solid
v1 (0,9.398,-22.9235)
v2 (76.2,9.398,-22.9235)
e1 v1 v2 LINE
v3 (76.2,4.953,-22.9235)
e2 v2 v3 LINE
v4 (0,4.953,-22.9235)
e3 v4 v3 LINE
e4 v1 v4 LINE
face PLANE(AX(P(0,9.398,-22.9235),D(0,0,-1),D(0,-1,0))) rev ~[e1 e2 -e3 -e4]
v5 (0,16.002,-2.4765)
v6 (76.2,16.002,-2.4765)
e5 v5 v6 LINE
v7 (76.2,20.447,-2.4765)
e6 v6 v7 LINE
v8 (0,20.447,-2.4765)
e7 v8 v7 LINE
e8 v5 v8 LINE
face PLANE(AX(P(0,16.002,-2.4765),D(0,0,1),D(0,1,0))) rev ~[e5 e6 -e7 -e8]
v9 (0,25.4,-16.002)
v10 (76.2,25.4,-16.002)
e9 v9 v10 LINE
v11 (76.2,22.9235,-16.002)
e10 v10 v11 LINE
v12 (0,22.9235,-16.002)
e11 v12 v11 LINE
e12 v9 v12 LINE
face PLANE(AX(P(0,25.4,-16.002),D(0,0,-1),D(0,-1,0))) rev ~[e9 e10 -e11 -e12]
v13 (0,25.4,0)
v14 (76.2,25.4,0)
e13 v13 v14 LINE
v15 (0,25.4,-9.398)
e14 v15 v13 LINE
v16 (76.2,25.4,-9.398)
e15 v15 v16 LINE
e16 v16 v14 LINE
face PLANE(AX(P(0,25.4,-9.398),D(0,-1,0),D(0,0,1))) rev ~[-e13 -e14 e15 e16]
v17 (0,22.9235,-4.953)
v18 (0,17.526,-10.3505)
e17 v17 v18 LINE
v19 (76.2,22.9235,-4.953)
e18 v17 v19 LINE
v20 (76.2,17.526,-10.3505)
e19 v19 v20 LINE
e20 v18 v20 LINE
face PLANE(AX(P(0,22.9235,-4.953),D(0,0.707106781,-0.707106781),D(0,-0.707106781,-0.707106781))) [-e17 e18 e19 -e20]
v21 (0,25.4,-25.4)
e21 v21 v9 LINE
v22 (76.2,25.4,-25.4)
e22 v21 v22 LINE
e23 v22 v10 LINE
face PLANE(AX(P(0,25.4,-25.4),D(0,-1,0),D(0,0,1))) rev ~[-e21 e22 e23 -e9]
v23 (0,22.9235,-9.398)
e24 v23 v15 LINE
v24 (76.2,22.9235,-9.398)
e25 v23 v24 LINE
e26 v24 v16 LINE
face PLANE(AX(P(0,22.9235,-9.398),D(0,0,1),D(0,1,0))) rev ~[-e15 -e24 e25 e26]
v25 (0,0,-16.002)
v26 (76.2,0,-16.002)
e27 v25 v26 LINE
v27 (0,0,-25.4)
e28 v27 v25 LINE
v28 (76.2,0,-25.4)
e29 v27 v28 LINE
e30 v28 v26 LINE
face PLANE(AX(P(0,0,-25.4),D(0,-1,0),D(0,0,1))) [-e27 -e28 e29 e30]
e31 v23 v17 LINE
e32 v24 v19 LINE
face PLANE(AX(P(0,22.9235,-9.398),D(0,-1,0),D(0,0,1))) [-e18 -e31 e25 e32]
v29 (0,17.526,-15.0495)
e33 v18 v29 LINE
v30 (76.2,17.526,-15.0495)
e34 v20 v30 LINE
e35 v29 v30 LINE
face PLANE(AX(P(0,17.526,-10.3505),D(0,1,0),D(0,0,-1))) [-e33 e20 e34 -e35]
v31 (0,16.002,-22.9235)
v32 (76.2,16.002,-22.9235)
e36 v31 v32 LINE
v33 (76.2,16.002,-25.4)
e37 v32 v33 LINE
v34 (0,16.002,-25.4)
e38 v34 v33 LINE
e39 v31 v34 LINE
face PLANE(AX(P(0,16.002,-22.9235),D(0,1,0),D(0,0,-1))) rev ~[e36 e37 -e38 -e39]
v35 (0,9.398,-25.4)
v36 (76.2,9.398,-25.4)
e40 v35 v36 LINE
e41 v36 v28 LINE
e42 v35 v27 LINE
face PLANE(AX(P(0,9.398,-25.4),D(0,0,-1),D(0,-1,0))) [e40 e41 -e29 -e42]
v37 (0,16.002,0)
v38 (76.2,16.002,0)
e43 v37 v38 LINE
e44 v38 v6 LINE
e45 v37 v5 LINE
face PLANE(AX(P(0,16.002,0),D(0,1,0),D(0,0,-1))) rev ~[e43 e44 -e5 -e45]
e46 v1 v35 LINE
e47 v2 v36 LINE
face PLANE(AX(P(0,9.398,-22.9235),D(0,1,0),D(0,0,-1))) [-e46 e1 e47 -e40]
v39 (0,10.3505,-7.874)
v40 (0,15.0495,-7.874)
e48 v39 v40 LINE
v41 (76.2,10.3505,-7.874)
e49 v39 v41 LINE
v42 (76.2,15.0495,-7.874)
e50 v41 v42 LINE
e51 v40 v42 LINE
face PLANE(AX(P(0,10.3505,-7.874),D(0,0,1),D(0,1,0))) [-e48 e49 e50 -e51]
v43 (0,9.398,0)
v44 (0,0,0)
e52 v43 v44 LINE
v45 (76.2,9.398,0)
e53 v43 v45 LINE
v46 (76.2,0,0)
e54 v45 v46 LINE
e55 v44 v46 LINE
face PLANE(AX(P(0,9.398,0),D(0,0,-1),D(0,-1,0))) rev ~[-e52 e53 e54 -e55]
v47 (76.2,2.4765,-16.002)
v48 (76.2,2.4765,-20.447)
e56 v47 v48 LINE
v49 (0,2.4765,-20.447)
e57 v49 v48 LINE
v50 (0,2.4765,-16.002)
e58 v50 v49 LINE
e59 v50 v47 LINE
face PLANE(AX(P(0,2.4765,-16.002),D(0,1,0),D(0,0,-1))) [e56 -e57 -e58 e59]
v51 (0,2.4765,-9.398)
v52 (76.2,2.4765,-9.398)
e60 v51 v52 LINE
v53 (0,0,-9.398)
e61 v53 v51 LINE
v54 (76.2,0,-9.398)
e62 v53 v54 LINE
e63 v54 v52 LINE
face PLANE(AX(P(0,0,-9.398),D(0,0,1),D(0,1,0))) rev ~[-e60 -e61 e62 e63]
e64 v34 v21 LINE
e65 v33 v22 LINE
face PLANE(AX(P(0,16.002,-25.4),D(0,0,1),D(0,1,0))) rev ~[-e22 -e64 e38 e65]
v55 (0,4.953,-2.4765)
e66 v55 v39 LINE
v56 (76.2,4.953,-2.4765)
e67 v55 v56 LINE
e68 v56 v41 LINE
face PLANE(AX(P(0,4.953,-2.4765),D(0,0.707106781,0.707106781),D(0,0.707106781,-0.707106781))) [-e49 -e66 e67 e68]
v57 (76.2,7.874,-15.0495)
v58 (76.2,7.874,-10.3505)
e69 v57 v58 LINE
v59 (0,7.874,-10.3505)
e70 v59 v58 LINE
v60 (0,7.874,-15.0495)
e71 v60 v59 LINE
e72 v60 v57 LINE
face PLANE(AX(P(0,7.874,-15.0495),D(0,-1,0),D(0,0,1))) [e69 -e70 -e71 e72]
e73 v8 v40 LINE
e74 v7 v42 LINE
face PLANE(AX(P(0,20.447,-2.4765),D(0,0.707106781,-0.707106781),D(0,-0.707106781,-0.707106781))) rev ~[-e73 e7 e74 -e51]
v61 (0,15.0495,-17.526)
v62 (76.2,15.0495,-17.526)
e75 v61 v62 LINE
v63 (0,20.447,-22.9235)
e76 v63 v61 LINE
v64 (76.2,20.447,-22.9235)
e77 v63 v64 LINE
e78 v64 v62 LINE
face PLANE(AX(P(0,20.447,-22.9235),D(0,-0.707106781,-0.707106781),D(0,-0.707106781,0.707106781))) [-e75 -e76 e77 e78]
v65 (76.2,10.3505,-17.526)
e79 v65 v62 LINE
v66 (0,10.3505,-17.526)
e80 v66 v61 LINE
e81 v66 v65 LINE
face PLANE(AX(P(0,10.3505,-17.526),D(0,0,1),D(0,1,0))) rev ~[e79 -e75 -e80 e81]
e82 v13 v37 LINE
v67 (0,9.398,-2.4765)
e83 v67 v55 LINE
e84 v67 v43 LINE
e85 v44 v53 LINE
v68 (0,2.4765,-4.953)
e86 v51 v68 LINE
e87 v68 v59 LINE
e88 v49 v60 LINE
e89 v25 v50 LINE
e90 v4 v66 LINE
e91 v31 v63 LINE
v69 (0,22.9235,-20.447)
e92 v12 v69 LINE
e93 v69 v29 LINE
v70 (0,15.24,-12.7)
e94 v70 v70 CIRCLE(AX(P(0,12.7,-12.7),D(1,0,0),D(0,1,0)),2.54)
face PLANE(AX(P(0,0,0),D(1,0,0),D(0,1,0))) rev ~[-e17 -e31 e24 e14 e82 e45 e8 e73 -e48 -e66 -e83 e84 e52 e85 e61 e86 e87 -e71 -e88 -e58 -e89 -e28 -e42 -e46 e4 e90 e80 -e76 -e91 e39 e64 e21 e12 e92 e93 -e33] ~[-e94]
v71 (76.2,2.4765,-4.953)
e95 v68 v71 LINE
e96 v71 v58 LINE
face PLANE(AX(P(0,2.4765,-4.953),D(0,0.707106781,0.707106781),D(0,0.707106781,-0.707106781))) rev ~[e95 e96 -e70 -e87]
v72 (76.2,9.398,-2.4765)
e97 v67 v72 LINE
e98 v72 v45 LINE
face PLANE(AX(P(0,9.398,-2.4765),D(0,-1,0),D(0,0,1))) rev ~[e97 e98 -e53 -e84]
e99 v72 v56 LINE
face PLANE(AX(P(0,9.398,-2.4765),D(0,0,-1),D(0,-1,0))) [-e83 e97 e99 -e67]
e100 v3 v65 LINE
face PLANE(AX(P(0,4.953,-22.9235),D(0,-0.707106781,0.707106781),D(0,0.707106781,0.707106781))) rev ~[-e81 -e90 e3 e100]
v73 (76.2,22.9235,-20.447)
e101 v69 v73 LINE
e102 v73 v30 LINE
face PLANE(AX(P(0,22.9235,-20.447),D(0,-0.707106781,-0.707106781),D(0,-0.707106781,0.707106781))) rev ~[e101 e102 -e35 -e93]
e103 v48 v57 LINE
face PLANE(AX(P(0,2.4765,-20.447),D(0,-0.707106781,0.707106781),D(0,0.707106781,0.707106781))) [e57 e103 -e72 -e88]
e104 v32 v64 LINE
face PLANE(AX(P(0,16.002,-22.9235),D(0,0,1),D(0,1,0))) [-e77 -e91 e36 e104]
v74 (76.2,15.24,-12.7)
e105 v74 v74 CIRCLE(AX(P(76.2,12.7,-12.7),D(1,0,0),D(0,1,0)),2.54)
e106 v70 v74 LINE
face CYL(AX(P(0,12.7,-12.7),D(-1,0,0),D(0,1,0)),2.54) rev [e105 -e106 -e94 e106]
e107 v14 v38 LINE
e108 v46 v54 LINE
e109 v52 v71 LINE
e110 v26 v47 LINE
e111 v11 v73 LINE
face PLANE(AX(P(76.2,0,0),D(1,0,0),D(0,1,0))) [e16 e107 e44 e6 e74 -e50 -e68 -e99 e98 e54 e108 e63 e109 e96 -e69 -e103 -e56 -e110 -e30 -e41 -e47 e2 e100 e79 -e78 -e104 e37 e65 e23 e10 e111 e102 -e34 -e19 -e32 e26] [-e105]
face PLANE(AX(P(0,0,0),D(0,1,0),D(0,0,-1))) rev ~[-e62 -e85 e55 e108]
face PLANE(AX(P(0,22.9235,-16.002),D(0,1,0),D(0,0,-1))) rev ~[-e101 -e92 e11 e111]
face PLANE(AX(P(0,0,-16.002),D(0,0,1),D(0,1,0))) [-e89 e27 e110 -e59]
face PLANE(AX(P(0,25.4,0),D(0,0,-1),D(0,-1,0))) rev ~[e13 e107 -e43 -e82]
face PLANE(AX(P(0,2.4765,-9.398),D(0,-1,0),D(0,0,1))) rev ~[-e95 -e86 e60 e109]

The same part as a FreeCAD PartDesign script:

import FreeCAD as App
import Part
import Sketcher
Q = App.Units.Quantity

doc = App.newDocument("Part")
body = doc.addObject("PartDesign::Body", "Body")

# Sketch on YZ plane
sketch1 = body.newObject("Sketcher::SketchObject", "Sketch")
sketch1.AttachmentSupport = (doc.getObject("YZ_Plane"), [""])
sketch1.MapMode = "FlatFace"
sketch1.addGeometry([
    Part.LineSegment(App.Vector(9.398, 0, 0), App.Vector(0, 0, 0)),  # 0
    Part.LineSegment(App.Vector(0, 0, 0), App.Vector(0, -9.398, 0)),  # 1
    Part.LineSegment(App.Vector(0, -9.398, 0), App.Vector(2.4765, -9.398, 0)),  # 2
    Part.LineSegment(App.Vector(2.4765, -9.398, 0), App.Vector(2.4765, -4.953, 0)),  # 3
    Part.LineSegment(App.Vector(2.4765, -4.953, 0), App.Vector(7.874, -10.3505, 0)),  # 4
    Part.LineSegment(App.Vector(7.874, -10.3505, 0), App.Vector(7.874, -15.0495, 0)),  # 5
    Part.LineSegment(App.Vector(7.874, -15.0495, 0), App.Vector(2.4765, -20.447, 0)),  # 6
    Part.LineSegment(App.Vector(2.4765, -20.447, 0), App.Vector(2.4765, -16.002, 0)),  # 7
    Part.LineSegment(App.Vector(2.4765, -16.002, 0), App.Vector(0, -16.002, 0)),  # 8
    Part.LineSegment(App.Vector(0, -16.002, 0), App.Vector(0, -25.4, 0)),  # 9
    Part.LineSegment(App.Vector(0, -25.4, 0), App.Vector(9.398, -25.4, 0)),  # 10
    Part.LineSegment(App.Vector(9.398, -25.4, 0), App.Vector(9.398, -22.9235, 0)),  # 11
    Part.LineSegment(App.Vector(9.398, -22.9235, 0), App.Vector(4.953, -22.9235, 0)),  # 12
    Part.LineSegment(App.Vector(4.953, -22.9235, 0), App.Vector(10.3505, -17.526, 0)),  # 13
    Part.LineSegment(App.Vector(10.3505, -17.526, 0), App.Vector(15.0495, -17.526, 0)),  # 14
    Part.LineSegment(App.Vector(15.0495, -17.526, 0), App.Vector(20.447, -22.9235, 0)),  # 15
    Part.LineSegment(App.Vector(20.447, -22.9235, 0), App.Vector(16.002, -22.9235, 0)),  # 16
    Part.LineSegment(App.Vector(16.002, -22.9235, 0), App.Vector(16.002, -25.4, 0)),  # 17
    Part.LineSegment(App.Vector(16.002, -25.4, 0), App.Vector(25.4, -25.4, 0)),  # 18
    Part.LineSegment(App.Vector(25.4, -25.4, 0), App.Vector(25.4, -16.002, 0)),  # 19
    Part.LineSegment(App.Vector(25.4, -16.002, 0), App.Vector(22.9235, -16.002, 0)),  # 20
    Part.LineSegment(App.Vector(22.9235, -16.002, 0), App.Vector(22.9235, -20.447, 0)),  # 21
    Part.LineSegment(App.Vector(22.9235, -20.447, 0), App.Vector(17.526, -15.0495, 0)),  # 22
    Part.LineSegment(App.Vector(17.526, -15.0495, 0), App.Vector(17.526, -10.3505, 0)),  # 23
    Part.LineSegment(App.Vector(17.526, -10.3505, 0), App.Vector(22.9235, -4.953, 0)),  # 24
    Part.LineSegment(App.Vector(22.9235, -4.953, 0), App.Vector(22.9235, -9.398, 0)),  # 25
    Part.LineSegment(App.Vector(22.9235, -9.398, 0), App.Vector(25.4, -9.398, 0)),  # 26
    Part.LineSegment(App.Vector(25.4, -9.398, 0), App.Vector(25.4, 0, 0)),  # 27
    Part.LineSegment(App.Vector(25.4, 0, 0), App.Vector(16.002, 0, 0)),  # 28
    Part.LineSegment(App.Vector(16.002, 0, 0), App.Vector(16.002, -2.4765, 0)),  # 29
    Part.LineSegment(App.Vector(16.002, -2.4765, 0), App.Vector(20.447, -2.4765, 0)),  # 30
    Part.LineSegment(App.Vector(20.447, -2.4765, 0), App.Vector(15.0495, -7.874, 0)),  # 31
    Part.LineSegment(App.Vector(15.0495, -7.874, 0), App.Vector(10.3505, -7.874, 0)),  # 32
    Part.LineSegment(App.Vector(10.3505, -7.874, 0), App.Vector(4.953, -2.4765, 0)),  # 33
    Part.LineSegment(App.Vector(4.953, -2.4765, 0), App.Vector(9.398, -2.4765, 0)),  # 34
    Part.LineSegment(App.Vector(9.398, -2.4765, 0), App.Vector(9.398, 0, 0)),  # 35
    Part.Circle(App.Vector(12.7, -12.7, 0), App.Vector(0, 0, 1), 2.54),  # 36
], False)
sketch1.addConstraint([
    Sketcher.Constraint("Coincident", 0, 2, 1, 1),
    Sketcher.Constraint("Coincident", 1, 2, 2, 1),
    Sketcher.Constraint("Coincident", 2, 2, 3, 1),
    Sketcher.Constraint("Coincident", 3, 2, 4, 1),
    Sketcher.Constraint("Coincident", 4, 2, 5, 1),
    Sketcher.Constraint("Coincident", 5, 2, 6, 1),
    Sketcher.Constraint("Coincident", 6, 2, 7, 1),
    Sketcher.Constraint("Coincident", 7, 2, 8, 1),
    Sketcher.Constraint("Coincident", 8, 2, 9, 1),
    Sketcher.Constraint("Coincident", 9, 2, 10, 1),
    Sketcher.Constraint("Coincident", 10, 2, 11, 1),
    Sketcher.Constraint("Coincident", 11, 2, 12, 1),
    Sketcher.Constraint("Coincident", 12, 2, 13, 1),
    Sketcher.Constraint("Coincident", 13, 2, 14, 1),
    Sketcher.Constraint("Coincident", 14, 2, 15, 1),
    Sketcher.Constraint("Coincident", 15, 2, 16, 1),
    Sketcher.Constraint("Coincident", 16, 2, 17, 1),
    Sketcher.Constraint("Coincident", 17, 2, 18, 1),
    Sketcher.Constraint("Coincident", 18, 2, 19, 1),
    Sketcher.Constraint("Coincident", 19, 2, 20, 1),
    Sketcher.Constraint("Coincident", 20, 2, 21, 1),
    Sketcher.Constraint("Coincident", 21, 2, 22, 1),
    Sketcher.Constraint("Coincident", 22, 2, 23, 1),
    Sketcher.Constraint("Coincident", 23, 2, 24, 1),
    Sketcher.Constraint("Coincident", 24, 2, 25, 1),
    Sketcher.Constraint("Coincident", 25, 2, 26, 1),
    Sketcher.Constraint("Coincident", 26, 2, 27, 1),
    Sketcher.Constraint("Coincident", 27, 2, 28, 1),
    Sketcher.Constraint("Coincident", 28, 2, 29, 1),
    Sketcher.Constraint("Coincident", 29, 2, 30, 1),
    Sketcher.Constraint("Coincident", 30, 2, 31, 1),
    Sketcher.Constraint("Coincident", 31, 2, 32, 1),
    Sketcher.Constraint("Coincident", 32, 2, 33, 1),
    Sketcher.Constraint("Coincident", 33, 2, 34, 1),
    Sketcher.Constraint("Coincident", 34, 2, 35, 1),
    Sketcher.Constraint("Coincident", 35, 2, 0, 1),
    Sketcher.Constraint("Horizontal", 0),
    Sketcher.Constraint("Vertical", 1),
    Sketcher.Constraint("Horizontal", 2),
    Sketcher.Constraint("Vertical", 3),
    Sketcher.Constraint("Vertical", 5),
    Sketcher.Constraint("Vertical", 7),
    Sketcher.Constraint("Horizontal", 8),
    Sketcher.Constraint("Vertical", 9),
    Sketcher.Constraint("Horizontal", 10),
    Sketcher.Constraint("Vertical", 11),
    Sketcher.Constraint("Horizontal", 12),
    Sketcher.Constraint("Horizontal", 14),
    Sketcher.Constraint("Horizontal", 16),
    Sketcher.Constraint("Vertical", 17),
    Sketcher.Constraint("Horizontal", 18),
    Sketcher.Constraint("Vertical", 19),
    Sketcher.Constraint("Horizontal", 20),
    Sketcher.Constraint("Vertical", 21),
    Sketcher.Constraint("Vertical", 23),
    Sketcher.Constraint("Vertical", 25),
    Sketcher.Constraint("Horizontal", 26),
    Sketcher.Constraint("Vertical", 27),
    Sketcher.Constraint("Horizontal", 28),
    Sketcher.Constraint("Vertical", 29),
    Sketcher.Constraint("Horizontal", 30),
    Sketcher.Constraint("Horizontal", 32),
    Sketcher.Constraint("Horizontal", 34),
    Sketcher.Constraint("Vertical", 35),
    Sketcher.Constraint("Coincident", 0, 2, -1, 1),
    Sketcher.Constraint("PointOnObject", 8, 2, -2),
    Sketcher.Constraint("PointOnObject", 27, 2, -1),
    Sketcher.Constraint("Perpendicular", 4, 6),
    Sketcher.Constraint("Parallel", 6, 13),
    Sketcher.Constraint("Perpendicular", 13, 15),
    Sketcher.Constraint("Parallel", 15, 22),
    Sketcher.Constraint("Perpendicular", 22, 24),
    Sketcher.Constraint("Parallel", 24, 31),
    Sketcher.Constraint("Perpendicular", 31, 33),
    Sketcher.Constraint("Horizontal", 12, 2, 15, 2),
    Sketcher.Constraint("Horizontal", 10, 2, 17, 2),
    Sketcher.Constraint("Horizontal", 8, 2, 19, 2),
    Sketcher.Constraint("Horizontal", 6, 2, 21, 2),
    Sketcher.Constraint("Horizontal", 5, 2, 22, 2),
    Sketcher.Constraint("Horizontal", 4, 2, 23, 2),
    Sketcher.Constraint("Horizontal", 3, 2, 24, 2),
    Sketcher.Constraint("Horizontal", 2, 2, 25, 2),
    Sketcher.Constraint("Horizontal", 30, 2, 33, 2),
    Sketcher.Constraint("Vertical", 3, 2, 6, 2),
    Sketcher.Constraint("Vertical", 21, 2, 24, 2),
    Sketcher.Constraint("Vertical", 19, 2, 26, 2),
    Sketcher.Constraint("Vertical", 17, 2, 28, 2),
    Sketcher.Constraint("Vertical", 15, 2, 30, 2),
    Sketcher.Constraint("Vertical", 14, 2, 31, 2),
    Sketcher.Constraint("Vertical", 13, 2, 32, 2),
    Sketcher.Constraint("Vertical", 11, 2, 34, 2),
    Sketcher.Constraint("Equal", 12, 16),
    Sketcher.Constraint("Equal", 10, 18),
    Sketcher.Constraint("Equal", 8, 20),
    Sketcher.Constraint("Equal", 28, 1),
    Sketcher.Constraint("Equal", 34, 3),
    Sketcher.Constraint("Equal", 32, 5),
    Sketcher.Constraint("Equal", 3, 7),
    Sketcher.Constraint("Equal", 1, 9),
    Sketcher.Constraint("Equal", 26, 11),
    Sketcher.Constraint("Equal", 17, 29),
    Sketcher.Constraint("Equal", 6, 13),
    Sketcher.Constraint("Diameter", 36, Q("0.2 in")),
    Sketcher.Constraint("DistanceY", 9, 2, -1, 1, Q("1 in")),
    Sketcher.Constraint("DistanceX", 0, 2, 0, 1, Q("0.37 in")),
    Sketcher.Constraint("DistanceX", 12, 2, 12, 1, Q("0.175 in")),
    Sketcher.Constraint("DistanceX", 2, 1, 2, 2, Q("0.0975 in")),
    Sketcher.Constraint("DistanceX", -1, 1, 36, 3, Q("0.5 in")),
    Sketcher.Constraint("DistanceY", 36, 3, -1, 1, Q("0.5 in")),
    Sketcher.Constraint("DistanceX", 14, 1, 14, 2, Q("0.185 in")),
])
pad1 = body.newObject("PartDesign::Pad", "Pad")
pad1.Profile = sketch1
pad1.Length = Q("3 in")

doc.recompute()
